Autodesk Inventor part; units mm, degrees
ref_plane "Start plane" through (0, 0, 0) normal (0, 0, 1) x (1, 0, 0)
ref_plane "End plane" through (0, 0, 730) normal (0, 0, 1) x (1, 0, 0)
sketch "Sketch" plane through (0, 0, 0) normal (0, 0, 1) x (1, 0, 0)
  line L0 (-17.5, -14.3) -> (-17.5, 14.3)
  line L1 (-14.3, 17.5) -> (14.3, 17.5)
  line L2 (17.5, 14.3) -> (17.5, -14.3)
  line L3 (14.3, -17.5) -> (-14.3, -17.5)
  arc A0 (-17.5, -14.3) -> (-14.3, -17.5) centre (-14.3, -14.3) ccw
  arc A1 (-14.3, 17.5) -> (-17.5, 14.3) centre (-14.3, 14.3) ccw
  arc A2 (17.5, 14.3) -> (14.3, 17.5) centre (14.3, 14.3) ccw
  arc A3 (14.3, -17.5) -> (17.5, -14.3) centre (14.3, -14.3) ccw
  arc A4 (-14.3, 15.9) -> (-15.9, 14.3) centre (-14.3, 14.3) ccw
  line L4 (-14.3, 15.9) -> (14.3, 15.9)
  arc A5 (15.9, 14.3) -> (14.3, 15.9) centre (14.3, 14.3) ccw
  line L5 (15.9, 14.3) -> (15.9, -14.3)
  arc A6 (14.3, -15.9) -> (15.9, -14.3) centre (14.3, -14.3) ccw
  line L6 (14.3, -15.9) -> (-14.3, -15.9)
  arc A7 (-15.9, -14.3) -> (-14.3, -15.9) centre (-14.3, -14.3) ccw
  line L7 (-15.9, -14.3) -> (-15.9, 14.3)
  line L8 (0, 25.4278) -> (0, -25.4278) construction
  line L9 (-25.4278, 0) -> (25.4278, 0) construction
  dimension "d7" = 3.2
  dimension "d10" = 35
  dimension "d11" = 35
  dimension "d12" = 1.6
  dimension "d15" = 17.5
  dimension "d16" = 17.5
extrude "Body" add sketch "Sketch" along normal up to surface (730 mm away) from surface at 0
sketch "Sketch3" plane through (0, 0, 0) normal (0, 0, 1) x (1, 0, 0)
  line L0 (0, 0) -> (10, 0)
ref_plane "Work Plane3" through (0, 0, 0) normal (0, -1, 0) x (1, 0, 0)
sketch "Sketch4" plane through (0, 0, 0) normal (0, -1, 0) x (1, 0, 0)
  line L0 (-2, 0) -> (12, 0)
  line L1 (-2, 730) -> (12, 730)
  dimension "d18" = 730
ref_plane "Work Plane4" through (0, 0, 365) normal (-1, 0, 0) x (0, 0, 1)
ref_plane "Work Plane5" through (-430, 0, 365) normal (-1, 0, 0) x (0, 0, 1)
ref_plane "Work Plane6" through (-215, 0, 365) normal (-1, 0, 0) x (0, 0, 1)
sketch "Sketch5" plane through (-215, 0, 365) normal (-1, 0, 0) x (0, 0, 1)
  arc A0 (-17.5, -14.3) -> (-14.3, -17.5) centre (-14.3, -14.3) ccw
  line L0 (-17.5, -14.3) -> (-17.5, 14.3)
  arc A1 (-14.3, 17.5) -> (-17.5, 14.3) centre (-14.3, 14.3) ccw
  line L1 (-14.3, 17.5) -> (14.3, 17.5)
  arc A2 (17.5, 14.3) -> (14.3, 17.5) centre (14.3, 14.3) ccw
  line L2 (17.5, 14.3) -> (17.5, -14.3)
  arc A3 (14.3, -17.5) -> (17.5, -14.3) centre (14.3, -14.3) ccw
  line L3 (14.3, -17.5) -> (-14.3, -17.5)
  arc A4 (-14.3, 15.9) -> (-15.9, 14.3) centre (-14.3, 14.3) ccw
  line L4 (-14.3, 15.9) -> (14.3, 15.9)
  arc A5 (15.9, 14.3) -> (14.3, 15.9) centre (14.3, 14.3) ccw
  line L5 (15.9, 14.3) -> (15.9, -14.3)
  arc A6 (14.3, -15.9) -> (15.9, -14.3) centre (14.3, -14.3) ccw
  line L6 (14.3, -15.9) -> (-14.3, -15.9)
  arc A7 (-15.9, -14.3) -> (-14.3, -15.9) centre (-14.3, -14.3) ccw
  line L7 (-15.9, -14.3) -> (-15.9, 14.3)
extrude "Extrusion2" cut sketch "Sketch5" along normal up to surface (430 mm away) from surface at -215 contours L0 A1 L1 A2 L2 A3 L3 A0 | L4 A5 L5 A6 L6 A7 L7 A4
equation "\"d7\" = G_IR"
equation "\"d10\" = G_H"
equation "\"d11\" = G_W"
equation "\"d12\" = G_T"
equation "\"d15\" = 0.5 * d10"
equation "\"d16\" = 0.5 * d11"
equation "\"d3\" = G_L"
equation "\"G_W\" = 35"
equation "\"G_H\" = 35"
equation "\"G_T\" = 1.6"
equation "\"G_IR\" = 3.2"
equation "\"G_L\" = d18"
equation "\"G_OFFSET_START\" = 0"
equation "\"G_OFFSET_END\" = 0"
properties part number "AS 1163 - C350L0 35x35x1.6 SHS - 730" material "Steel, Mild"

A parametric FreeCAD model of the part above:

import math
import FreeCAD as App
import Part
import Sketcher
from FreeCAD import Vector
Q = App.Units.Quantity

doc = App.newDocument("Part")
params = doc.addObject("Spreadsheet::Sheet", "Params")
for row, (alias, value) in enumerate([
    ("sketch1_radius", "3.2 mm"),
    ("sketch1_radius2", "1.6 mm"),
    ("pad1_length", "730 mm"),
    ("sketch2_radius", "3.2 mm"),
    ("sketch2_width", "28.6 mm"),
    ("pocket1_length", "430 mm"),
], start=1):
    params.set(f"A{row}", alias)
    params.set(f"B{row}", "=" + value)
    params.setAlias(f"B{row}", alias)

body = doc.addObject("PartDesign::Body", "Body")

# Sketch on XY plane
sketch1 = body.newObject("Sketcher::SketchObject", "Sketch")
sketch1.AttachmentSupport = (doc.getObject("XY_Plane"), [""])
sketch1.MapMode = "FlatFace"
sketch1.addGeometry(Part.LineSegment(Vector(-17.5, 14.3, 0), Vector(-17.5, -14.3, 0)), False)
sketch1.addGeometry(Part.ArcOfCircle(Part.Circle(Vector(-14.3, -14.3, 0), Vector(0, 0, 1), 3.2), math.radians(180), math.radians(270)), False)
sketch1.addGeometry(Part.LineSegment(Vector(-14.3, -17.5, 0), Vector(14.3, -17.5, 0)), False)
sketch1.addGeometry(Part.ArcOfCircle(Part.Circle(Vector(14.3, -14.3, 0), Vector(0, 0, 1), 3.2), math.radians(-90), math.radians(0)), False)
sketch1.addGeometry(Part.LineSegment(Vector(17.5, -14.3, 0), Vector(17.5, 14.3, 0)), False)
sketch1.addGeometry(Part.ArcOfCircle(Part.Circle(Vector(14.3, 14.3, 0), Vector(0, 0, 1), 3.2), math.radians(0), math.radians(90)), False)
sketch1.addGeometry(Part.LineSegment(Vector(14.3, 17.5, 0), Vector(-14.3, 17.5, 0)), False)
sketch1.addGeometry(Part.ArcOfCircle(Part.Circle(Vector(-14.3, 14.3, 0), Vector(0, 0, 1), 3.2), math.radians(90), math.radians(180)), False)
sketch1.addGeometry(Part.ArcOfCircle(Part.Circle(Vector(-14.3, 14.3, 0), Vector(0, 0, 1), 1.6), math.radians(90), math.radians(180)), False)
sketch1.addGeometry(Part.LineSegment(Vector(-14.3, 15.9, 0), Vector(14.3, 15.9, 0)), False)
sketch1.addGeometry(Part.ArcOfCircle(Part.Circle(Vector(14.3, 14.3, 0), Vector(0, 0, 1), 1.6), math.radians(0), math.radians(90)), False)
sketch1.addGeometry(Part.LineSegment(Vector(15.9, 14.3, 0), Vector(15.9, -14.3, 0)), False)
sketch1.addGeometry(Part.ArcOfCircle(Part.Circle(Vector(14.3, -14.3, 0), Vector(0, 0, 1), 1.6), math.radians(-90), math.radians(0)), False)
sketch1.addGeometry(Part.LineSegment(Vector(14.3, -15.9, 0), Vector(-14.3, -15.9, 0)), False)
sketch1.addGeometry(Part.ArcOfCircle(Part.Circle(Vector(-14.3, -14.3, 0), Vector(0, 0, 1), 1.6), math.radians(180), math.radians(270)), False)
sketch1.addGeometry(Part.LineSegment(Vector(-15.9, -14.3, 0), Vector(-15.9, 14.3, 0)), False)
sketch1.addConstraint(Sketcher.Constraint("Tangent", 0, 2, 1, 1))
sketch1.addConstraint(Sketcher.Constraint("Tangent", 1, 2, 2, 1))
sketch1.addConstraint(Sketcher.Constraint("Tangent", 2, 2, 3, 1))
sketch1.addConstraint(Sketcher.Constraint("Tangent", 3, 2, 4, 1))
sketch1.addConstraint(Sketcher.Constraint("Tangent", 4, 2, 5, 1))
sketch1.addConstraint(Sketcher.Constraint("Tangent", 5, 2, 6, 1))
sketch1.addConstraint(Sketcher.Constraint("Tangent", 6, 2, 7, 1))
sketch1.addConstraint(Sketcher.Constraint("Tangent", 7, 2, 0, 1))
sketch1.addConstraint(Sketcher.Constraint("Tangent", 8, 1, 9, 1))
sketch1.addConstraint(Sketcher.Constraint("Tangent", 9, 2, 10, 2))
sketch1.addConstraint(Sketcher.Constraint("Tangent", 10, 1, 11, 1))
sketch1.addConstraint(Sketcher.Constraint("Tangent", 11, 2, 12, 2))
sketch1.addConstraint(Sketcher.Constraint("Tangent", 12, 1, 13, 1))
sketch1.addConstraint(Sketcher.Constraint("Tangent", 13, 2, 14, 2))
sketch1.addConstraint(Sketcher.Constraint("Tangent", 14, 1, 15, 1))
sketch1.addConstraint(Sketcher.Constraint("Tangent", 15, 2, 8, 2))
sketch1.addConstraint(Sketcher.Constraint("Vertical", 0))
sketch1.addConstraint(Sketcher.Constraint("Horizontal", 2))
sketch1.addConstraint(Sketcher.Constraint("Vertical", 4))
sketch1.addConstraint(Sketcher.Constraint("Horizontal", 6))
sketch1.addConstraint(Sketcher.Constraint("Horizontal", 9))
sketch1.addConstraint(Sketcher.Constraint("Vertical", 11))
sketch1.addConstraint(Sketcher.Constraint("Horizontal", 13))
sketch1.addConstraint(Sketcher.Constraint("Vertical", 15))
sketch1.addConstraint(Sketcher.Constraint("Coincident", 8, 3, 7, 3))
sketch1.addConstraint(Sketcher.Constraint("Coincident", 10, 3, 5, 3))
sketch1.addConstraint(Sketcher.Constraint("Coincident", 12, 3, 3, 3))
sketch1.addConstraint(Sketcher.Constraint("Equal", 1, 3))
sketch1.addConstraint(Sketcher.Constraint("Equal", 3, 5))
sketch1.addConstraint(Sketcher.Constraint("Equal", 5, 7))
sketch1.addConstraint(Sketcher.Constraint("Equal", 12, 14))
sketch1.addConstraint(Sketcher.Constraint("Symmetric", 1, 3, 5, 3, -1, 1))
sketch1.addConstraint(Sketcher.Constraint("Equal", 13, 0))
sketch1.addConstraint(Sketcher.Constraint("Radius", 1, Q("3.2 mm")))
sketch1.addConstraint(Sketcher.Constraint("Radius", 8, Q("1.6 mm")))
sketch1.addConstraint(Sketcher.Constraint("DistanceX", 0, 2, -1, 1, Q("17.5 mm")))
sketch1.setExpression("Constraints[33]", "Params.sketch1_radius")
sketch1.setExpression("Constraints[34]", "Params.sketch1_radius2")
pad1 = body.newObject("PartDesign::Pad", "Pad")
pad1.Profile = sketch1
pad1.setExpression("Length", "Params.pad1_length")

# Sketch on YZ plane
sketch2 = body.newObject("Sketcher::SketchObject", "Sketch001")
sketch2.AttachmentSupport = (doc.getObject("YZ_Plane"), [""])
sketch2.MapMode = "FlatFace"
sketch2.addGeometry(Part.LineSegment(Vector(14.3, 347.5, 0), Vector(-14.3, 347.5, 0)), False)
sketch2.addGeometry(Part.ArcOfCircle(Part.Circle(Vector(-14.3, 350.7, 0), Vector(0, 0, 1), 3.2), math.radians(180), math.radians(270)), False)
sketch2.addGeometry(Part.LineSegment(Vector(-17.5, 350.7, 0), Vector(-17.5, 379.3, 0)), False)
sketch2.addGeometry(Part.ArcOfCircle(Part.Circle(Vector(-14.3, 379.3, 0), Vector(0, 0, 1), 3.2), math.radians(90), math.radians(180)), False)
sketch2.addGeometry(Part.LineSegment(Vector(-14.3, 382.5, 0), Vector(14.3, 382.5, 0)), False)
sketch2.addGeometry(Part.ArcOfCircle(Part.Circle(Vector(14.3, 379.3, 0), Vector(0, 0, 1), 3.2), math.radians(0), math.radians(90)), False)
sketch2.addGeometry(Part.LineSegment(Vector(17.5, 379.3, 0), Vector(17.5, 350.7, 0)), False)
sketch2.addGeometry(Part.ArcOfCircle(Part.Circle(Vector(14.3, 350.7, 0), Vector(0, 0, 1), 3.2), math.radians(-90), math.radians(0)), False)
sketch2.addConstraint(Sketcher.Constraint("Tangent", 0, 2, 1, 2))
sketch2.addConstraint(Sketcher.Constraint("Tangent", 1, 1, 2, 1))
sketch2.addConstraint(Sketcher.Constraint("Tangent", 2, 2, 3, 2))
sketch2.addConstraint(Sketcher.Constraint("Tangent", 3, 1, 4, 1))
sketch2.addConstraint(Sketcher.Constraint("Tangent", 4, 2, 5, 2))
sketch2.addConstraint(Sketcher.Constraint("Tangent", 5, 1, 6, 1))
sketch2.addConstraint(Sketcher.Constraint("Tangent", 6, 2, 7, 2))
sketch2.addConstraint(Sketcher.Constraint("Tangent", 7, 1, 0, 1))
sketch2.addConstraint(Sketcher.Constraint("Horizontal", 0))
sketch2.addConstraint(Sketcher.Constraint("Vertical", 2))
sketch2.addConstraint(Sketcher.Constraint("Horizontal", 4))
sketch2.addConstraint(Sketcher.Constraint("Vertical", 6))
sketch2.addConstraint(Sketcher.Constraint("Equal", 1, 3))
sketch2.addConstraint(Sketcher.Constraint("Equal", 3, 5))
sketch2.addConstraint(Sketcher.Constraint("Equal", 5, 7))
sketch2.addConstraint(Sketcher.Constraint("Equal", 4, 2))
sketch2.addConstraint(Sketcher.Constraint("Radius", 1, Q("3.2 mm")))
sketch2.addConstraint(Sketcher.Constraint("DistanceX", 0, 2, 0, 1, Q("28.6 mm")))
sketch2.addConstraint(Sketcher.Constraint("DistanceX", 1, 3, -1, 1, Q("14.3 mm")))
sketch2.addConstraint(Sketcher.Constraint("DistanceY", -1, 1, 1, 3, Q("350.7 mm")))
sketch2.setExpression("Constraints[16]", "Params.sketch2_radius")
sketch2.setExpression("Constraints[17]", "Params.sketch2_width")
pocket1 = body.newObject("PartDesign::Pocket", "Pocket")
pocket1.Profile = sketch2
pocket1.setExpression("Length", "Params.pocket1_length")

doc.recompute()
